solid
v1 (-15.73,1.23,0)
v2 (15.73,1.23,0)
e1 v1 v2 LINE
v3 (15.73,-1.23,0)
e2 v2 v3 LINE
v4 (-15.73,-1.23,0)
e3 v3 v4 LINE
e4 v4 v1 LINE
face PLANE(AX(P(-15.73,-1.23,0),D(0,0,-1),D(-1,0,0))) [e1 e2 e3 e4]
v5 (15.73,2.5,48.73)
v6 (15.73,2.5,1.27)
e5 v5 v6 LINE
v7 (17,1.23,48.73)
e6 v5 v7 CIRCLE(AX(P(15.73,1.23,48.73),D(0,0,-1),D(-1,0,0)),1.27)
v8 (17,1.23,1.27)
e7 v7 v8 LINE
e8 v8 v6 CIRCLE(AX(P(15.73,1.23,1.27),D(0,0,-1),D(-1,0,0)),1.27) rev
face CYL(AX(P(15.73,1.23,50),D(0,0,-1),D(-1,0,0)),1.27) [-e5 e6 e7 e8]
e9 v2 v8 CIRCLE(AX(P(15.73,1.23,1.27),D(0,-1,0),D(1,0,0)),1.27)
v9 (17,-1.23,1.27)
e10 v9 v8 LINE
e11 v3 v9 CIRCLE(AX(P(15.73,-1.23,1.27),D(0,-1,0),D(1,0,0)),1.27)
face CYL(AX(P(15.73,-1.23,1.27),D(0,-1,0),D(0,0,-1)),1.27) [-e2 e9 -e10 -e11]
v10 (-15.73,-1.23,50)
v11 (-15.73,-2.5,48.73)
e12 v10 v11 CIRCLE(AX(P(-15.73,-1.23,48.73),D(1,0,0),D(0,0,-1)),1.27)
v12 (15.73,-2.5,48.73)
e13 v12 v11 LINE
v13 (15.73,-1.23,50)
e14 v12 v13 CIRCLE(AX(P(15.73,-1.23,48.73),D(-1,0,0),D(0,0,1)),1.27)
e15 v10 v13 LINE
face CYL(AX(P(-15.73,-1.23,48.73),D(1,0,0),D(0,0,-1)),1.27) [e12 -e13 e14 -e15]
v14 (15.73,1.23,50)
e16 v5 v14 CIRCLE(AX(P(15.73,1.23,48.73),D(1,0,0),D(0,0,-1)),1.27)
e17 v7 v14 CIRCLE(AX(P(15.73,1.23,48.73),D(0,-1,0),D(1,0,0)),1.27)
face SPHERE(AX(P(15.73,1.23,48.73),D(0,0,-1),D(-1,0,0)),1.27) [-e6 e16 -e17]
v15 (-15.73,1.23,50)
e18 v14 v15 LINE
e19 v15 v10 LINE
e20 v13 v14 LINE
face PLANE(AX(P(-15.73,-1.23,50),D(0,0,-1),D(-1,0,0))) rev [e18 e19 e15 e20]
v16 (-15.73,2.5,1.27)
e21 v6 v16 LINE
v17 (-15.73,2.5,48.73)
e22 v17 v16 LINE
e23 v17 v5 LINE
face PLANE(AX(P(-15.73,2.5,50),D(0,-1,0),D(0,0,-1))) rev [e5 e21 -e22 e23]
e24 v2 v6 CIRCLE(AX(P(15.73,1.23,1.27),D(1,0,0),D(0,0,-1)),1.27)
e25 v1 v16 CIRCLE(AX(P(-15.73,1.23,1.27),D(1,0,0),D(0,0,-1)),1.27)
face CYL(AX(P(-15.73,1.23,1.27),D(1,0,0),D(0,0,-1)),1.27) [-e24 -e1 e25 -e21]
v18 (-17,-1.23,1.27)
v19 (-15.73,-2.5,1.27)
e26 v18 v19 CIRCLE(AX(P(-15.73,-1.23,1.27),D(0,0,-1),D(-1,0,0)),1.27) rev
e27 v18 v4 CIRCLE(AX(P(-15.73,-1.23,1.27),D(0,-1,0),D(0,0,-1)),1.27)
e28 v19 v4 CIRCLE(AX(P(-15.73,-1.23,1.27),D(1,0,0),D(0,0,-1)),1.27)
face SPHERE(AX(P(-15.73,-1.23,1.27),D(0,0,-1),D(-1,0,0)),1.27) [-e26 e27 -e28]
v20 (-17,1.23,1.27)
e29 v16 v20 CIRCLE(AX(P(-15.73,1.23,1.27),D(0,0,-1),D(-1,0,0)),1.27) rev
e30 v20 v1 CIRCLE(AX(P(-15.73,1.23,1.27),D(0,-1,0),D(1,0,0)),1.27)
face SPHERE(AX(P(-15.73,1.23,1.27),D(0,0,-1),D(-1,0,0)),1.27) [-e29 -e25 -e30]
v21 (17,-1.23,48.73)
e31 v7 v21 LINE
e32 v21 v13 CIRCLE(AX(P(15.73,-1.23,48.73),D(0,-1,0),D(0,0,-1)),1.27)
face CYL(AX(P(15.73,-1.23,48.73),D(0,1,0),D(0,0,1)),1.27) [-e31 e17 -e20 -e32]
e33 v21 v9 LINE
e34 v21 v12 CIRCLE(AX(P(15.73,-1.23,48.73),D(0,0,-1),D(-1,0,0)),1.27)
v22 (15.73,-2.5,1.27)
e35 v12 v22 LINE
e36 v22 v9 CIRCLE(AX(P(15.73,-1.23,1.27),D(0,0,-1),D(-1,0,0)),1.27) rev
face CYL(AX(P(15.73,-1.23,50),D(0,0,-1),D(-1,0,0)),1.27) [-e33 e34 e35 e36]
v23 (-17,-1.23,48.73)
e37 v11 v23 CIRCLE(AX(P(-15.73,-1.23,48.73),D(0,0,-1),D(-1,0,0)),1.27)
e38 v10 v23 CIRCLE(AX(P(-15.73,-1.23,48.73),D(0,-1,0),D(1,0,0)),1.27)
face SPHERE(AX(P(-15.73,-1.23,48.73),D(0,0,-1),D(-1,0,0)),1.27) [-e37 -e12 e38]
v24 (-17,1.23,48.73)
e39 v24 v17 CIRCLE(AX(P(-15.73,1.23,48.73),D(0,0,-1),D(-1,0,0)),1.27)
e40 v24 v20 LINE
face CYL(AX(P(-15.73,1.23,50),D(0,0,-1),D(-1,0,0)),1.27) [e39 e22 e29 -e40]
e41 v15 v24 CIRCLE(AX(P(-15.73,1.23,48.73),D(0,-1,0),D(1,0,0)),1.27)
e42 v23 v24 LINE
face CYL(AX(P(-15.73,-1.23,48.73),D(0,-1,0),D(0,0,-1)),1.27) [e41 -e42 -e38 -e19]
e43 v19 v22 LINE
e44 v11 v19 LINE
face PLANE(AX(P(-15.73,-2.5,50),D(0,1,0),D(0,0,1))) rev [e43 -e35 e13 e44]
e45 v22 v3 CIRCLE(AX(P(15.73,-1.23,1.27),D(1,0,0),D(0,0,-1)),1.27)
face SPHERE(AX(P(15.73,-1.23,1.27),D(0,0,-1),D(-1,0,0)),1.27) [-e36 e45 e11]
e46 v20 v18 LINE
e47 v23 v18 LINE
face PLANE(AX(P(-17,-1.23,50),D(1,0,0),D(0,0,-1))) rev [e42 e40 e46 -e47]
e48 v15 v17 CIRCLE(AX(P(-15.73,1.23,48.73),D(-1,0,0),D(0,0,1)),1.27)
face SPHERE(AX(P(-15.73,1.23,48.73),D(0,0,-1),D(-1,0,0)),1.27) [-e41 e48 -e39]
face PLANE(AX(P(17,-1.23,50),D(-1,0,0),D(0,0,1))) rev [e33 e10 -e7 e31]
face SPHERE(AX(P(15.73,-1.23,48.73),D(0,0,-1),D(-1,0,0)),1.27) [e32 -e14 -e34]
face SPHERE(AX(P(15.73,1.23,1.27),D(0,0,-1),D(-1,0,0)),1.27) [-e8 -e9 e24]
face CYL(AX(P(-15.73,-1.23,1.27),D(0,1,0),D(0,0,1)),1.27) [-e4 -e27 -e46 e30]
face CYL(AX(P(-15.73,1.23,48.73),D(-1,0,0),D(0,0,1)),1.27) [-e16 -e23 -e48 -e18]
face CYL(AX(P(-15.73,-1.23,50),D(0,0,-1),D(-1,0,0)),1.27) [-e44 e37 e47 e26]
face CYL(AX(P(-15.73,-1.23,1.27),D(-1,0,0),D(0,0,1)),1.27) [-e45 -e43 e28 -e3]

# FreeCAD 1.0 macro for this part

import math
import FreeCAD as App
import Part
import Sketcher
from FreeCAD import Vector
Q = App.Units.Quantity


def edges_at(feature, points):
    """Names of the edges that pass closest to the given points."""
    edges = feature.Shape.Edges
    near = lambda p: min(range(len(edges)), key=lambda i: edges[i].distToShape(Part.Vertex(*p))[0])
    return sorted({f"Edge{near(p) + 1}" for p in points})

doc = App.newDocument("Part")
body = doc.addObject("PartDesign::Body", "Body")

# Sketch on XY plane
sketch1 = body.newObject("Sketcher::SketchObject", "Sketch")
sketch1.AttachmentSupport = (doc.getObject("XY_Plane"), [""])
sketch1.MapMode = "FlatFace"
sketch1.addGeometry(Part.LineSegment(Vector(-15.7, -2.5, 0), Vector(15.7, -2.5, 0)), False)
sketch1.addGeometry(Part.ArcOfCircle(Part.Circle(Vector(15.7, -1.2, 0), Vector(0, 0, 1), 1.3), math.radians(-90), math.radians(0)), False)
sketch1.addGeometry(Part.LineSegment(Vector(17, -1.2, 0), Vector(17, 1.2, 0)), False)
sketch1.addGeometry(Part.ArcOfCircle(Part.Circle(Vector(15.7, 1.2, 0), Vector(0, 0, 1), 1.3), math.radians(0), math.radians(90)), False)
sketch1.addGeometry(Part.LineSegment(Vector(15.7, 2.5, 0), Vector(-15.7, 2.5, 0)), False)
sketch1.addGeometry(Part.ArcOfCircle(Part.Circle(Vector(-15.7, 1.2, 0), Vector(0, 0, 1), 1.3), math.radians(90), math.radians(180)), False)
sketch1.addGeometry(Part.LineSegment(Vector(-17, 1.2, 0), Vector(-17, -1.2, 0)), False)
sketch1.addGeometry(Part.ArcOfCircle(Part.Circle(Vector(-15.7, -1.2, 0), Vector(0, 0, 1), 1.3), math.radians(180), math.radians(270)), False)
sketch1.addConstraint(Sketcher.Constraint("Tangent", 0, 2, 1, 1))
sketch1.addConstraint(Sketcher.Constraint("Tangent", 1, 2, 2, 1))
sketch1.addConstraint(Sketcher.Constraint("Tangent", 2, 2, 3, 1))
sketch1.addConstraint(Sketcher.Constraint("Tangent", 3, 2, 4, 1))
sketch1.addConstraint(Sketcher.Constraint("Tangent", 4, 2, 5, 1))
sketch1.addConstraint(Sketcher.Constraint("Tangent", 5, 2, 6, 1))
sketch1.addConstraint(Sketcher.Constraint("Tangent", 6, 2, 7, 1))
sketch1.addConstraint(Sketcher.Constraint("Tangent", 7, 2, 0, 1))
sketch1.addConstraint(Sketcher.Constraint("Horizontal", 0))
sketch1.addConstraint(Sketcher.Constraint("Vertical", 2))
sketch1.addConstraint(Sketcher.Constraint("Horizontal", 4))
sketch1.addConstraint(Sketcher.Constraint("Vertical", 6))
sketch1.addConstraint(Sketcher.Constraint("Equal", 1, 3))
sketch1.addConstraint(Sketcher.Constraint("Equal", 3, 5))
sketch1.addConstraint(Sketcher.Constraint("Equal", 5, 7))
sketch1.addConstraint(Sketcher.Constraint("Symmetric", 1, 3, 5, 3, -1, 1))
sketch1.addConstraint(Sketcher.Constraint("Radius", 1, Q("0.05 in")))
sketch1.addConstraint(Sketcher.Constraint("DistanceX", 0, 1, 0, 2, 31.46))
sketch1.addConstraint(Sketcher.Constraint("DistanceY", 2, 1, 2, 2, 2.46))
pad1 = body.newObject("PartDesign::Pad", "Pad")
pad1.Profile = sketch1
pad1.Length = 50
doc.recompute()

fillet = body.newObject("PartDesign::Fillet", "Fillet")
fillet.Base = (pad1, edges_at(pad1, [
    (17, 0, 0),
    (16.628, -2.128, 0),
    (0, -2.5, 0),
    (-16.628, -2.128, 0),
    (16.628, -2.128, 50),
    (17, 0, 50),
    (16.628, 2.128, 50),
    (0, 2.5, 50),
    (-16.628, 2.128, 50),
    (-17, 0, 50),
    (-16.628, -2.128, 50),
    (-17, 0, 0),
    (0, -2.5, 50),
    (-16.628, 2.128, 0),
    (0, 2.5, 0),
    (16.628, 2.128, 0),
]))
fillet.Radius = Q("0.05 in")

doc.recompute()
